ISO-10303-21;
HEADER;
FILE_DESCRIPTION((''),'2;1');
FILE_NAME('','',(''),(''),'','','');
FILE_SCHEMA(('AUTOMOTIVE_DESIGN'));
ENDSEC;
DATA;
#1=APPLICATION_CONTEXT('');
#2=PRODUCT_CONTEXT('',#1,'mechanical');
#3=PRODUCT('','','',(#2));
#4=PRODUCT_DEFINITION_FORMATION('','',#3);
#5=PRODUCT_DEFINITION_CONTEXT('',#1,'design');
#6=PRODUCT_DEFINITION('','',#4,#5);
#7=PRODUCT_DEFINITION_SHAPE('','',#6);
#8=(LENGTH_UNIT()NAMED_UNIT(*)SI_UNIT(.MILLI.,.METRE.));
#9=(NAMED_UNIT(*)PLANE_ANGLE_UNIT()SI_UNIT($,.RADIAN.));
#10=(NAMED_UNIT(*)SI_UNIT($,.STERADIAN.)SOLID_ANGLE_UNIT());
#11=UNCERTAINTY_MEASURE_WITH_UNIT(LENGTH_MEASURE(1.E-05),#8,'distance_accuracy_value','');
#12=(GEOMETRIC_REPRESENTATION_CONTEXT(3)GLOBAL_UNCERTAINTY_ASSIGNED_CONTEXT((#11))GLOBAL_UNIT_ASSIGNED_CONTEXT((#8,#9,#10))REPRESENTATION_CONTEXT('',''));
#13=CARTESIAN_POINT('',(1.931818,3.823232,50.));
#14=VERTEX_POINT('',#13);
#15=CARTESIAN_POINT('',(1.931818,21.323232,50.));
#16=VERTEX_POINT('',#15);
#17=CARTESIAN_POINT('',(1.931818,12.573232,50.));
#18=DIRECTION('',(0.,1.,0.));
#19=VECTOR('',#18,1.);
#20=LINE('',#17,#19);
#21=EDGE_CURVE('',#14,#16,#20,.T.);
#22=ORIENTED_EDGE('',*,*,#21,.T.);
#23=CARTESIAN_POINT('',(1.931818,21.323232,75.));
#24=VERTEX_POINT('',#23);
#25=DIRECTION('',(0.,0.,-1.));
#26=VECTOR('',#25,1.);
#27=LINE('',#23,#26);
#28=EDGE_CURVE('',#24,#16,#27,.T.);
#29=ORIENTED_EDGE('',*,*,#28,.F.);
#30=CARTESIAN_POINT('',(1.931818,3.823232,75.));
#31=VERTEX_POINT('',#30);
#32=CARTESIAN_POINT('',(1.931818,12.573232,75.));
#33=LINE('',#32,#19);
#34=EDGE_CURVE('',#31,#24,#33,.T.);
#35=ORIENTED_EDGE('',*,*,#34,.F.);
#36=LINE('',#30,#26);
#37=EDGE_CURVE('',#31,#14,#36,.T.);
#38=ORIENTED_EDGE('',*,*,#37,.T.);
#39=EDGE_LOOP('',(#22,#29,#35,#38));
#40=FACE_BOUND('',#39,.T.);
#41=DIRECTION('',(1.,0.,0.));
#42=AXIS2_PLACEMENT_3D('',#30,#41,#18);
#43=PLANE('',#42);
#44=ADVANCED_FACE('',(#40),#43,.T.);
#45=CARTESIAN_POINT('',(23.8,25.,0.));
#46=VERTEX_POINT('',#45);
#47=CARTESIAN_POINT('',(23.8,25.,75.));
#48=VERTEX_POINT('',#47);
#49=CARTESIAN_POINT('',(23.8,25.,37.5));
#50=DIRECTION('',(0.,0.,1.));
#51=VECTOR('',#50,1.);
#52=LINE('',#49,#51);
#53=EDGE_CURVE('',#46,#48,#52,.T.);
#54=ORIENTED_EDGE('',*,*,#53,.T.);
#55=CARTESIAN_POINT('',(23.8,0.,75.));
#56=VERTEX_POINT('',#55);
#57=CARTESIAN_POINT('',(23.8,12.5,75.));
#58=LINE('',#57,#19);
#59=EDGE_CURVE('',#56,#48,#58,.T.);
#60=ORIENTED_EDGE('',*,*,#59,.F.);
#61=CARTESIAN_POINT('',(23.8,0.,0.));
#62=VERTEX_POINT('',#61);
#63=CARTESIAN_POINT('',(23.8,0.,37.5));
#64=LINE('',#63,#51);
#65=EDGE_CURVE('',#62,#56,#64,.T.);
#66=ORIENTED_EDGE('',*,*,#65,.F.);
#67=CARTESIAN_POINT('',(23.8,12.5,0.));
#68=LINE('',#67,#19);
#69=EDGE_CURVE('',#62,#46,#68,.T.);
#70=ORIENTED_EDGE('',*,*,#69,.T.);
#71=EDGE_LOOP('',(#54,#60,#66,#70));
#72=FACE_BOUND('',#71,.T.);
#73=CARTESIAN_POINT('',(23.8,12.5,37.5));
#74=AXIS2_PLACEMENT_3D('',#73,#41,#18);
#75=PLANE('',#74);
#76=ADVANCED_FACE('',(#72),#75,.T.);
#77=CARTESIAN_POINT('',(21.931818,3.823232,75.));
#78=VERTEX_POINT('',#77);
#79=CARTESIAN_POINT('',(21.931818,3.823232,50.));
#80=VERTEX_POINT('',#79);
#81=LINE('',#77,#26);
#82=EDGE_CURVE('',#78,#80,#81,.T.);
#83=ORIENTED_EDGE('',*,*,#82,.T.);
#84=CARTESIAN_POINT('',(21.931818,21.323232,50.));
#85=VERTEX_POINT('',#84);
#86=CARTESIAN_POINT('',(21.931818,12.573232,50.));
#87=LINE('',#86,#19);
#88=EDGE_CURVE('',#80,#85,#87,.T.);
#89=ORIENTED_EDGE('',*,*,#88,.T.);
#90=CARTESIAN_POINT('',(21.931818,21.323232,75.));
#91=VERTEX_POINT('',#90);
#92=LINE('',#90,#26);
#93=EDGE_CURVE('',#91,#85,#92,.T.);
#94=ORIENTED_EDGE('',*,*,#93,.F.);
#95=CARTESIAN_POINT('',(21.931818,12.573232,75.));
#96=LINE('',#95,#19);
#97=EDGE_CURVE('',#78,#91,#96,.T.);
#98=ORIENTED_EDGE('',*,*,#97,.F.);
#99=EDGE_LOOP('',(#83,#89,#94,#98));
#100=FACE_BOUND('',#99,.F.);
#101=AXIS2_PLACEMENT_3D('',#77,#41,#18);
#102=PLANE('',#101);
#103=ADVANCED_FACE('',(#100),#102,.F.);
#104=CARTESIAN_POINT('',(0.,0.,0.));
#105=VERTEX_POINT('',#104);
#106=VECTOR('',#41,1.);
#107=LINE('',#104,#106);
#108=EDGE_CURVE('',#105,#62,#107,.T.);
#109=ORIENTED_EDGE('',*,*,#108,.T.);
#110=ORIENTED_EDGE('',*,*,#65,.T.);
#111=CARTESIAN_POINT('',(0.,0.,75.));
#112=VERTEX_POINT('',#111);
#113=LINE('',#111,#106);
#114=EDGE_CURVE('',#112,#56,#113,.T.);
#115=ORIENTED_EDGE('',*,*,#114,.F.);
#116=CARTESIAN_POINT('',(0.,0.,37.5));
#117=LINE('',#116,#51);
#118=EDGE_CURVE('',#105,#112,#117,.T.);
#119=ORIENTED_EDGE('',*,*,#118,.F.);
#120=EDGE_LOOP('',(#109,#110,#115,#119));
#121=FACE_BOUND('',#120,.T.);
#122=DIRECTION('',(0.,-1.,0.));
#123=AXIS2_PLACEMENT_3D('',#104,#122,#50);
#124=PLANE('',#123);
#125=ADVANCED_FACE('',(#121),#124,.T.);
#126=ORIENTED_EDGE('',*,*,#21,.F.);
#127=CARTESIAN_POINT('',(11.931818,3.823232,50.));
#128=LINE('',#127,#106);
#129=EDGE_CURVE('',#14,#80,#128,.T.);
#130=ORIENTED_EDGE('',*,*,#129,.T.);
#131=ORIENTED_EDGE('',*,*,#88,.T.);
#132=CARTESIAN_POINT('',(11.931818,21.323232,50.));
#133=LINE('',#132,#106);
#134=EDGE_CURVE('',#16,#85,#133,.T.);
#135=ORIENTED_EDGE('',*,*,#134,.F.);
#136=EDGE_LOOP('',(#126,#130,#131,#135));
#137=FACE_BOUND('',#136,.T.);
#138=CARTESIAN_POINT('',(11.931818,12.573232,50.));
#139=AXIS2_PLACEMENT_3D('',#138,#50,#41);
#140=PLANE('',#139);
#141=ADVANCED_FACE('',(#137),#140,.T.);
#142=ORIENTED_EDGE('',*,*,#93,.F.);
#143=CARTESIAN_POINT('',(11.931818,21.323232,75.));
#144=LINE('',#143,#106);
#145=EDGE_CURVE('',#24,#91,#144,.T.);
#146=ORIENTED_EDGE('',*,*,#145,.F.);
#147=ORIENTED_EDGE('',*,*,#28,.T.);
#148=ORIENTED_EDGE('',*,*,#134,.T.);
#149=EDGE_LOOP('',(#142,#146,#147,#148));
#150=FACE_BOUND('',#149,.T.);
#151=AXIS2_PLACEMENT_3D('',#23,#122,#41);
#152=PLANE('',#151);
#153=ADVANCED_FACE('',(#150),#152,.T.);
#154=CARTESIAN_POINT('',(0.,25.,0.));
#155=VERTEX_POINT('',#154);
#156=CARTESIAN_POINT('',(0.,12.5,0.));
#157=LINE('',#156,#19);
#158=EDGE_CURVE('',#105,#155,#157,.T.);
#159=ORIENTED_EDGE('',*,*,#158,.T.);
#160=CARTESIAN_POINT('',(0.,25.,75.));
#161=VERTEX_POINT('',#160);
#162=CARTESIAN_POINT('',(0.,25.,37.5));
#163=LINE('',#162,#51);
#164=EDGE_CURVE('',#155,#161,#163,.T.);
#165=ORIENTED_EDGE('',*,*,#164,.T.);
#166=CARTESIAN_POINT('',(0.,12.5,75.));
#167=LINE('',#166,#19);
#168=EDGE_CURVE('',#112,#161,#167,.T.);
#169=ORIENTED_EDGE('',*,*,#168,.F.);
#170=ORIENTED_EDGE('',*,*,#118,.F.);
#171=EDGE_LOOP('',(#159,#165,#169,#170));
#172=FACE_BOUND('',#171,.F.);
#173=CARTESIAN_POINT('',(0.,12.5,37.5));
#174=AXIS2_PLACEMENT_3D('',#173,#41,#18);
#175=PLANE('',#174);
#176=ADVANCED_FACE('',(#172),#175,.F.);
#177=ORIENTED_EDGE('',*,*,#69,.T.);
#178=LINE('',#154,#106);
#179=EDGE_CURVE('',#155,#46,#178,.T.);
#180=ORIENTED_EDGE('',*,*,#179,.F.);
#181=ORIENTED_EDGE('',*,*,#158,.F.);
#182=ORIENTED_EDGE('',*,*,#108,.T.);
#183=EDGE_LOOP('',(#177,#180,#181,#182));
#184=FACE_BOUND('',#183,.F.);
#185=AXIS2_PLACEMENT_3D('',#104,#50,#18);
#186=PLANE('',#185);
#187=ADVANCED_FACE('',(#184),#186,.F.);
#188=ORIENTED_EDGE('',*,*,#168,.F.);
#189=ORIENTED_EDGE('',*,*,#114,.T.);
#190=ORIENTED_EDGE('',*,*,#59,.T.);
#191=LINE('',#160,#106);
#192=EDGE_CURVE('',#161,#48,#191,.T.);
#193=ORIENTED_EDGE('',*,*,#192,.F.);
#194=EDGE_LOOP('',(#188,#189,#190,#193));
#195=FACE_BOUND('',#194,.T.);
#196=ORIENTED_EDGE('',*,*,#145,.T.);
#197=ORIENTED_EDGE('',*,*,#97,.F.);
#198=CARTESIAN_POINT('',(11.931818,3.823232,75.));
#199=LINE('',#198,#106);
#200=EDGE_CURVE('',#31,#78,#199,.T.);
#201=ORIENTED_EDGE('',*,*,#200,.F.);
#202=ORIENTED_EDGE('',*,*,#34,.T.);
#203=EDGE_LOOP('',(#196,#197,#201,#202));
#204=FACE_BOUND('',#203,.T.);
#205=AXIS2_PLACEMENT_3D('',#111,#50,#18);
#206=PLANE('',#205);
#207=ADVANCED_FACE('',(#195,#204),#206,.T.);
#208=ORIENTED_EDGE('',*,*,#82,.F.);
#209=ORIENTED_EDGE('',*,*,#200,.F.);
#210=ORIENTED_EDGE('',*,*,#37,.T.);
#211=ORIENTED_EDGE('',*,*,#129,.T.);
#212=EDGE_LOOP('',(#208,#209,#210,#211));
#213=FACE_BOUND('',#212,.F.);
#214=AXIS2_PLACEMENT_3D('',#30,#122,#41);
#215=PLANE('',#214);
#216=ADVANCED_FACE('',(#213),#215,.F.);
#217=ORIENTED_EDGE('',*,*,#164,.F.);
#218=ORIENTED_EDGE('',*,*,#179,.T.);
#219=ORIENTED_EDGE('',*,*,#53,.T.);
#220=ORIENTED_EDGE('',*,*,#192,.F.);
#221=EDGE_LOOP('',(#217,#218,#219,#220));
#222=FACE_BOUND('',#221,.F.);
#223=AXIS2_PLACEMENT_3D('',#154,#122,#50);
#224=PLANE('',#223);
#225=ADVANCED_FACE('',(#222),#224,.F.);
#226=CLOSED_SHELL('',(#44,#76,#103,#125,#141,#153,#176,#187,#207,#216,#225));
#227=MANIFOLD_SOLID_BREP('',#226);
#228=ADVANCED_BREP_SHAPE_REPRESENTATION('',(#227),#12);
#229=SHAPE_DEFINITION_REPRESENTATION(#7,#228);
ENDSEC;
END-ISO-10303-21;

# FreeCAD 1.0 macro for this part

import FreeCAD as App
import Part
import Sketcher

V = App.Vector

doc = App.newDocument("Part")
body = doc.addObject("PartDesign::Body", "Body")

# Sketch on YZ plane
sketch1 = body.newObject("Sketcher::SketchObject", "Sketch")
sketch1.AttachmentSupport = (doc.getObject("YZ_Plane"), [""])
sketch1.MapMode = "FlatFace"
sketch1.addGeometry(Part.LineSegment(V(0, 75, 0), V(0, 0, 0)), False)
sketch1.addGeometry(Part.LineSegment(V(0, 0, 0), V(25, 0, 0)), False)
sketch1.addGeometry(Part.LineSegment(V(25, 0, 0), V(25, 75, 0)), False)
sketch1.addGeometry(Part.LineSegment(V(25, 75, 0), V(0, 75, 0)), False)
sketch1.addConstraint(Sketcher.Constraint("Coincident", 0, 2, 1, 1))
sketch1.addConstraint(Sketcher.Constraint("Coincident", 1, 2, 2, 1))
sketch1.addConstraint(Sketcher.Constraint("Coincident", 2, 2, 3, 1))
sketch1.addConstraint(Sketcher.Constraint("Coincident", 3, 2, 0, 1))
sketch1.addConstraint(Sketcher.Constraint("Vertical", 0))
sketch1.addConstraint(Sketcher.Constraint("Horizontal", 1))
sketch1.addConstraint(Sketcher.Constraint("Vertical", 2))
sketch1.addConstraint(Sketcher.Constraint("Horizontal", 3))
sketch1.addConstraint(Sketcher.Constraint("Coincident", 0, 2, -1, 1))
sketch1.addConstraint(Sketcher.Constraint("DistanceX", 1, 1, 1, 2, 25.0))
sketch1.addConstraint(Sketcher.Constraint("DistanceY", 0, 2, 0, 1, 75.0))
pad1 = body.newObject("PartDesign::Pad", "Pad")
pad1.Profile = sketch1
pad1.Length = 23.8

# Sketch on XY plane
sketch2 = body.newObject("Sketcher::SketchObject", "Sketch001")
sketch2.AttachmentSupport = (doc.getObject("XY_Plane"), [""])
sketch2.MapMode = "FlatFace"
sketch2.AttachmentOffset = App.Placement(V(0, 0, 75), App.Rotation())
sketch2.addGeometry(Part.LineSegment(V(2, 21, 0), V(2, 4, 0)), False)
sketch2.addGeometry(Part.LineSegment(V(2, 4, 0), V(22, 4, 0)), False)
sketch2.addGeometry(Part.LineSegment(V(22, 4, 0), V(22, 21, 0)), False)
sketch2.addGeometry(Part.LineSegment(V(22, 21, 0), V(2, 21, 0)), False)
sketch2.addConstraint(Sketcher.Constraint("Coincident", 0, 2, 1, 1))
sketch2.addConstraint(Sketcher.Constraint("Coincident", 1, 2, 2, 1))
sketch2.addConstraint(Sketcher.Constraint("Coincident", 2, 2, 3, 1))
sketch2.addConstraint(Sketcher.Constraint("Coincident", 3, 2, 0, 1))
sketch2.addConstraint(Sketcher.Constraint("Vertical", 0))
sketch2.addConstraint(Sketcher.Constraint("Horizontal", 1))
sketch2.addConstraint(Sketcher.Constraint("Vertical", 2))
sketch2.addConstraint(Sketcher.Constraint("Horizontal", 3))
sketch2.addConstraint(Sketcher.Constraint("DistanceX", 1, 1, 1, 2, 20.0))
sketch2.addConstraint(Sketcher.Constraint("DistanceY", 0, 2, 0, 1, 17.5))
sketch2.addConstraint(Sketcher.Constraint("DistanceY", -1, 1, 0, 2, 3.823232))
sketch2.addConstraint(Sketcher.Constraint("DistanceX", -1, 1, 1, 2, 21.931818))
pocket1 = body.newObject("PartDesign::Pocket", "Pocket")
pocket1.Profile = sketch2
pocket1.Length = 25

doc.recompute()
